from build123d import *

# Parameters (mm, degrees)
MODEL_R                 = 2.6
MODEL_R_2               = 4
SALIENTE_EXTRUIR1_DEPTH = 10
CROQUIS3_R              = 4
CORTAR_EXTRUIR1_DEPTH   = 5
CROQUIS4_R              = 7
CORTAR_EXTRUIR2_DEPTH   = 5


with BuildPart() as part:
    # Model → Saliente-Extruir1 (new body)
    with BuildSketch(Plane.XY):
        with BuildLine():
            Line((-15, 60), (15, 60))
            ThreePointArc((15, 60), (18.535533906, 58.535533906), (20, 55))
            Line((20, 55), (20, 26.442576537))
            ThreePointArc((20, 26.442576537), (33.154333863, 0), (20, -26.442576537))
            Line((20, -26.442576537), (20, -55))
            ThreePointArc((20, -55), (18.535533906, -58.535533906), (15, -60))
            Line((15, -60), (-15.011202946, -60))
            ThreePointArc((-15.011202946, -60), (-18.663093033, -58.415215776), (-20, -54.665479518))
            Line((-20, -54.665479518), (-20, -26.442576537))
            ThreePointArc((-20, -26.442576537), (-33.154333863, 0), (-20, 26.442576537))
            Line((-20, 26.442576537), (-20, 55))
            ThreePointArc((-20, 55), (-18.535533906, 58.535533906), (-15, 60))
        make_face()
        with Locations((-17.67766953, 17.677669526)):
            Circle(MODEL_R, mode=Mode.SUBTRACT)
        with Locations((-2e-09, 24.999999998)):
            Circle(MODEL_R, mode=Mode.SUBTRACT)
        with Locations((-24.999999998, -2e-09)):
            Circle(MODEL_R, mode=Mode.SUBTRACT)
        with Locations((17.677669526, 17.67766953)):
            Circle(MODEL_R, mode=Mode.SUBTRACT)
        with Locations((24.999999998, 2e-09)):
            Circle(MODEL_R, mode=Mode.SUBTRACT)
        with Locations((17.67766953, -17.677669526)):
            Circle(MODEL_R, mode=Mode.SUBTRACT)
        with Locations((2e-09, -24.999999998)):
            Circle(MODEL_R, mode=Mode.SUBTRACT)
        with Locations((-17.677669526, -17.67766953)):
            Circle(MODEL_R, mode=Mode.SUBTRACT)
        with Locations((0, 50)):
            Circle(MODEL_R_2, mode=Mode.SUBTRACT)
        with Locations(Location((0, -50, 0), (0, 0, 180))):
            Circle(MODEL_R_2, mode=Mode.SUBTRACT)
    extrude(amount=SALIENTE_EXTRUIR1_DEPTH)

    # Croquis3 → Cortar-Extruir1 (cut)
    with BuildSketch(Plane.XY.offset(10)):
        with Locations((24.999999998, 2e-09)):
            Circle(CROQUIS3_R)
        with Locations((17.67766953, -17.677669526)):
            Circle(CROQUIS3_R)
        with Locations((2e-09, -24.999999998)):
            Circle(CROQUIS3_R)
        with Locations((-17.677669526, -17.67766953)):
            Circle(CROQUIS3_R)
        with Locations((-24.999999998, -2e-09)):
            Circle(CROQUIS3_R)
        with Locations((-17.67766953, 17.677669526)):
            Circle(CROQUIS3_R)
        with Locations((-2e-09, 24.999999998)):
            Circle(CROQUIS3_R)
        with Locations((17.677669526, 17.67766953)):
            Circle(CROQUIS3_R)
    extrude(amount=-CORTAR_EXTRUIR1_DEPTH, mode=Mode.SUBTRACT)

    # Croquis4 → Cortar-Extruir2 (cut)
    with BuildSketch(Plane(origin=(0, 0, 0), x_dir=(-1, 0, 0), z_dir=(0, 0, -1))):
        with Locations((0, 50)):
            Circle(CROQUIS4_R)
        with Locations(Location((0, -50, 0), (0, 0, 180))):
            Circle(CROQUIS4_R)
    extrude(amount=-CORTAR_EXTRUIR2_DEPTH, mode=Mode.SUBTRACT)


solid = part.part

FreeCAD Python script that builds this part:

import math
import FreeCAD as App
import Part
import Sketcher

V = App.Vector

doc = App.newDocument("Part")
body = doc.addObject("PartDesign::Body", "Body")

# Sketch on XY plane
sketch1 = body.newObject("Sketcher::SketchObject", "Sketch")
sketch1.AttachmentSupport = (doc.getObject("XY_Plane"), [""])
sketch1.MapMode = "FlatFace"
sketch1.addGeometry(Part.LineSegment(V(15, 60, 0), V(-15, 60, 0)), False)
sketch1.addGeometry(Part.ArcOfCircle(Part.Circle(V(-15, 55, 0), V(0, 0, 1), 5), math.radians(90), math.radians(180)), False)
sketch1.addGeometry(Part.LineSegment(V(-20, 55, 0), V(-20, 26.4, 0)), False)
sketch1.addGeometry(Part.ArcOfCircle(Part.Circle(V(0, 0, 0), V(0, 0, 1), 33.2), math.radians(127), math.radians(233)), False)
sketch1.addGeometry(Part.LineSegment(V(-20, -26.4, 0), V(-20, -54.7, 0)), False)
sketch1.addGeometry(Part.ArcOfCircle(Part.Circle(V(-15, -55, 0), V(0, 0, 1), 5), math.radians(176), math.radians(270)), False)
sketch1.addGeometry(Part.LineSegment(V(-15, -60, 0), V(15, -60, 0)), False)
sketch1.addGeometry(Part.ArcOfCircle(Part.Circle(V(15, -55, 0), V(0, 0, 1), 5), math.radians(-90), math.radians(0)), False)
sketch1.addGeometry(Part.LineSegment(V(20, -55, 0), V(20, -26.4, 0)), False)
sketch1.addGeometry(Part.ArcOfCircle(Part.Circle(V(0, 0, 0), V(0, 0, 1), 33.2), math.radians(-53), math.radians(53)), False)
sketch1.addGeometry(Part.LineSegment(V(20, 26.4, 0), V(20, 55, 0)), False)
sketch1.addGeometry(Part.ArcOfCircle(Part.Circle(V(15, 55, 0), V(0, 0, 1), 5), math.radians(0), math.radians(90)), False)
sketch1.addGeometry(Part.Circle(V(17.7, -17.7, 0), V(0, 0, 1), 2.6), False)
sketch1.addGeometry(Part.Circle(V(0, -25, 0), V(0, 0, 1), 2.6), False)
sketch1.addGeometry(Part.Circle(V(0, -50, 0), V(0, 0, 1), 4), False)
sketch1.addGeometry(Part.Circle(V(-17.7, -17.7, 0), V(0, 0, 1), 2.6), False)
sketch1.addGeometry(Part.Circle(V(-25, 0, 0), V(0, 0, 1), 2.6), False)
sketch1.addGeometry(Part.Circle(V(25, 0, 0), V(0, 0, 1), 2.6), False)
sketch1.addGeometry(Part.Circle(V(17.7, 17.7, 0), V(0, 0, 1), 2.6), False)
sketch1.addGeometry(Part.Circle(V(0, 25, 0), V(0, 0, 1), 2.6), False)
sketch1.addGeometry(Part.Circle(V(-17.7, 17.7, 0), V(0, 0, 1), 2.6), False)
sketch1.addGeometry(Part.Circle(V(0, 50, 0), V(0, 0, 1), 4), False)
sketch1.addConstraint(Sketcher.Constraint("Tangent", 0, 2, 1, 1))
sketch1.addConstraint(Sketcher.Constraint("Tangent", 1, 2, 2, 1))
sketch1.addConstraint(Sketcher.Constraint("Coincident", 2, 2, 3, 1))
sketch1.addConstraint(Sketcher.Constraint("Coincident", 3, 2, 4, 1))
sketch1.addConstraint(Sketcher.Constraint("Coincident", 4, 2, 5, 1))
sketch1.addConstraint(Sketcher.Constraint("Tangent", 5, 2, 6, 1))
sketch1.addConstraint(Sketcher.Constraint("Tangent", 6, 2, 7, 1))
sketch1.addConstraint(Sketcher.Constraint("Tangent", 7, 2, 8, 1))
sketch1.addConstraint(Sketcher.Constraint("Coincident", 8, 2, 9, 1))
sketch1.addConstraint(Sketcher.Constraint("Coincident", 9, 2, 10, 1))
sketch1.addConstraint(Sketcher.Constraint("Tangent", 10, 2, 11, 1))
sketch1.addConstraint(Sketcher.Constraint("Tangent", 11, 2, 0, 1))
sketch1.addConstraint(Sketcher.Constraint("Horizontal", 0))
sketch1.addConstraint(Sketcher.Constraint("Vertical", 2))
sketch1.addConstraint(Sketcher.Constraint("Vertical", 4))
sketch1.addConstraint(Sketcher.Constraint("Horizontal", 6))
sketch1.addConstraint(Sketcher.Constraint("Vertical", 8))
sketch1.addConstraint(Sketcher.Constraint("Vertical", 10))
sketch1.addConstraint(Sketcher.Constraint("Coincident", 3, 3, -1, 1))
sketch1.addConstraint(Sketcher.Constraint("Coincident", 9, 3, -1, 1))
sketch1.addConstraint(Sketcher.Constraint("Equal", 1, 5))
sketch1.addConstraint(Sketcher.Constraint("Equal", 5, 7))
sketch1.addConstraint(Sketcher.Constraint("Equal", 3, 9))
sketch1.addConstraint(Sketcher.Constraint("Equal", 7, 11))
sketch1.addConstraint(Sketcher.Constraint("Equal", 12, 13))
sketch1.addConstraint(Sketcher.Constraint("Equal", 13, 15))
sketch1.addConstraint(Sketcher.Constraint("Equal", 15, 16))
sketch1.addConstraint(Sketcher.Constraint("Equal", 16, 17))
sketch1.addConstraint(Sketcher.Constraint("Equal", 17, 18))
sketch1.addConstraint(Sketcher.Constraint("Equal", 18, 19))
sketch1.addConstraint(Sketcher.Constraint("Equal", 19, 20))
sketch1.addConstraint(Sketcher.Constraint("Equal", 14, 21))
sketch1.addConstraint(Sketcher.Constraint("Symmetric", 1, 3, 7, 3, -1, 1))
sketch1.addConstraint(Sketcher.Constraint("Symmetric", 16, 3, 17, 3, -1, 1))
sketch1.addConstraint(Sketcher.Constraint("Symmetric", 15, 3, 18, 3, -1, 1))
sketch1.addConstraint(Sketcher.Constraint("Symmetric", 13, 3, 19, 3, -1, 1))
sketch1.addConstraint(Sketcher.Constraint("Symmetric", 12, 3, 20, 3, -1, 1))
sketch1.addConstraint(Sketcher.Constraint("Symmetric", 14, 3, 21, 3, -1, 1))
sketch1.addConstraint(Sketcher.Constraint("Symmetric", 12, 3, 15, 3, -2))
sketch1.addConstraint(Sketcher.Constraint("PointOnObject", 13, 3, -2))
sketch1.addConstraint(Sketcher.Constraint("PointOnObject", 14, 3, -2))
sketch1.addConstraint(Sketcher.Constraint("PointOnObject", 16, 3, -1))
sketch1.addConstraint(Sketcher.Constraint("Horizontal", 3, 2, 8, 2))
sketch1.addConstraint(Sketcher.Constraint("Horizontal", 2, 2, 9, 2))
sketch1.addConstraint(Sketcher.Constraint("Diameter", 14, 8.0))
sketch1.addConstraint(Sketcher.Constraint("Radius", 1, 5.0))
sketch1.addConstraint(Sketcher.Constraint("Diameter", 12, 5.2))
sketch1.addConstraint(Sketcher.Constraint("DistanceX", 0, 2, 0, 1, 30.0))
sketch1.addConstraint(Sketcher.Constraint("DistanceY", -1, 1, 1, 3, 55.0))
sketch1.addConstraint(Sketcher.Constraint("DistanceY", 13, 3, -1, 1, 25.0))
sketch1.addConstraint(Sketcher.Constraint("DistanceY", 14, 3, -1, 1, 50.0))
sketch1.addConstraint(Sketcher.Constraint("DistanceX", 16, 3, -1, 1, 25.0))
sketch1.addConstraint(Sketcher.Constraint("Radius", 3, 33.154334))
sketch1.addConstraint(Sketcher.Constraint("DistanceX", 6, 1, 6, 2, 30.011203))
sketch1.addConstraint(Sketcher.Constraint("DistanceX", -1, 1, 12, 3, 17.67767))
sketch1.addConstraint(Sketcher.Constraint("DistanceY", 12, 3, -1, 1, 17.67767))
pad1 = body.newObject("PartDesign::Pad", "Pad")
pad1.Profile = sketch1
pad1.Length = 10

# Sketch on XY plane
sketch2 = body.newObject("Sketcher::SketchObject", "Sketch001")
sketch2.AttachmentSupport = (doc.getObject("XY_Plane"), [""])
sketch2.MapMode = "FlatFace"
sketch2.AttachmentOffset = App.Placement(V(0, 0, 10), App.Rotation())
sketch2.addGeometry(Part.Circle(V(25, 0, 0), V(0, 0, 1), 4), False)
sketch2.addGeometry(Part.Circle(V(17.7, -17.7, 0), V(0, 0, 1), 4), False)
sketch2.addGeometry(Part.Circle(V(0, -25, 0), V(0, 0, 1), 4), False)
sketch2.addGeometry(Part.Circle(V(-17.7, -17.7, 0), V(0, 0, 1), 4), False)
sketch2.addGeometry(Part.Circle(V(-25, 0, 0), V(0, 0, 1), 4), False)
sketch2.addGeometry(Part.Circle(V(-17.7, 17.7, 0), V(0, 0, 1), 4), False)
sketch2.addGeometry(Part.Circle(V(0, 25, 0), V(0, 0, 1), 4), False)
sketch2.addGeometry(Part.Circle(V(17.7, 17.7, 0), V(0, 0, 1), 4), False)
sketch2.addConstraint(Sketcher.Constraint("Equal", 0, 1))
sketch2.addConstraint(Sketcher.Constraint("Equal", 1, 2))
sketch2.addConstraint(Sketcher.Constraint("Equal", 2, 3))
sketch2.addConstraint(Sketcher.Constraint("Equal", 3, 4))
sketch2.addConstraint(Sketcher.Constraint("Equal", 4, 5))
sketch2.addConstraint(Sketcher.Constraint("Equal", 5, 6))
sketch2.addConstraint(Sketcher.Constraint("Equal", 6, 7))
sketch2.addConstraint(Sketcher.Constraint("Symmetric", 0, 3, 4, 3, -1, 1))
sketch2.addConstraint(Sketcher.Constraint("Symmetric", 1, 3, 5, 3, -1, 1))
sketch2.addConstraint(Sketcher.Constraint("Symmetric", 2, 3, 6, 3, -1, 1))
sketch2.addConstraint(Sketcher.Constraint("Symmetric", 3, 3, 7, 3, -1, 1))
sketch2.addConstraint(Sketcher.Constraint("Symmetric", 1, 3, 3, 3, -2))
sketch2.addConstraint(Sketcher.Constraint("PointOnObject", 0, 3, -1))
sketch2.addConstraint(Sketcher.Constraint("PointOnObject", 2, 3, -2))
sketch2.addConstraint(Sketcher.Constraint("Diameter", 0, 8.0))
sketch2.addConstraint(Sketcher.Constraint("DistanceX", -1, 1, 0, 3, 25.0))
sketch2.addConstraint(Sketcher.Constraint("DistanceY", 2, 3, -1, 1, 25.0))
sketch2.addConstraint(Sketcher.Constraint("DistanceX", -1, 1, 1, 3, 17.67767))
sketch2.addConstraint(Sketcher.Constraint("DistanceY", 1, 3, -1, 1, 17.67767))
pocket1 = body.newObject("PartDesign::Pocket", "Pocket")
pocket1.Profile = sketch2
pocket1.Length = 5

# Sketch on XY plane
sketch3 = body.newObject("Sketcher::SketchObject", "Sketch002")
sketch3.AttachmentSupport = (doc.getObject("XY_Plane"), [""])
sketch3.MapMode = "FlatFace"
sketch3.addGeometry(Part.Circle(V(0, 50, 0), V(0, 0, 1), 7), False)
sketch3.addGeometry(Part.Circle(V(0, -50, 0), V(0, 0, 1), 7), False)
sketch3.addConstraint(Sketcher.Constraint("Equal", 0, 1))
sketch3.addConstraint(Sketcher.Constraint("Symmetric", 0, 3, 1, 3, -1, 1))
sketch3.addConstraint(Sketcher.Constraint("PointOnObject", 0, 3, -2))
sketch3.addConstraint(Sketcher.Constraint("Diameter", 0, 14.0))
sketch3.addConstraint(Sketcher.Constraint("DistanceY", -1, 1, 0, 3, 50.0))
pocket2 = body.newObject("PartDesign::Pocket", "Pocket001")
pocket2.Profile = sketch3
pocket2.Length = 5
pocket2.Reversed = True

doc.recompute()
